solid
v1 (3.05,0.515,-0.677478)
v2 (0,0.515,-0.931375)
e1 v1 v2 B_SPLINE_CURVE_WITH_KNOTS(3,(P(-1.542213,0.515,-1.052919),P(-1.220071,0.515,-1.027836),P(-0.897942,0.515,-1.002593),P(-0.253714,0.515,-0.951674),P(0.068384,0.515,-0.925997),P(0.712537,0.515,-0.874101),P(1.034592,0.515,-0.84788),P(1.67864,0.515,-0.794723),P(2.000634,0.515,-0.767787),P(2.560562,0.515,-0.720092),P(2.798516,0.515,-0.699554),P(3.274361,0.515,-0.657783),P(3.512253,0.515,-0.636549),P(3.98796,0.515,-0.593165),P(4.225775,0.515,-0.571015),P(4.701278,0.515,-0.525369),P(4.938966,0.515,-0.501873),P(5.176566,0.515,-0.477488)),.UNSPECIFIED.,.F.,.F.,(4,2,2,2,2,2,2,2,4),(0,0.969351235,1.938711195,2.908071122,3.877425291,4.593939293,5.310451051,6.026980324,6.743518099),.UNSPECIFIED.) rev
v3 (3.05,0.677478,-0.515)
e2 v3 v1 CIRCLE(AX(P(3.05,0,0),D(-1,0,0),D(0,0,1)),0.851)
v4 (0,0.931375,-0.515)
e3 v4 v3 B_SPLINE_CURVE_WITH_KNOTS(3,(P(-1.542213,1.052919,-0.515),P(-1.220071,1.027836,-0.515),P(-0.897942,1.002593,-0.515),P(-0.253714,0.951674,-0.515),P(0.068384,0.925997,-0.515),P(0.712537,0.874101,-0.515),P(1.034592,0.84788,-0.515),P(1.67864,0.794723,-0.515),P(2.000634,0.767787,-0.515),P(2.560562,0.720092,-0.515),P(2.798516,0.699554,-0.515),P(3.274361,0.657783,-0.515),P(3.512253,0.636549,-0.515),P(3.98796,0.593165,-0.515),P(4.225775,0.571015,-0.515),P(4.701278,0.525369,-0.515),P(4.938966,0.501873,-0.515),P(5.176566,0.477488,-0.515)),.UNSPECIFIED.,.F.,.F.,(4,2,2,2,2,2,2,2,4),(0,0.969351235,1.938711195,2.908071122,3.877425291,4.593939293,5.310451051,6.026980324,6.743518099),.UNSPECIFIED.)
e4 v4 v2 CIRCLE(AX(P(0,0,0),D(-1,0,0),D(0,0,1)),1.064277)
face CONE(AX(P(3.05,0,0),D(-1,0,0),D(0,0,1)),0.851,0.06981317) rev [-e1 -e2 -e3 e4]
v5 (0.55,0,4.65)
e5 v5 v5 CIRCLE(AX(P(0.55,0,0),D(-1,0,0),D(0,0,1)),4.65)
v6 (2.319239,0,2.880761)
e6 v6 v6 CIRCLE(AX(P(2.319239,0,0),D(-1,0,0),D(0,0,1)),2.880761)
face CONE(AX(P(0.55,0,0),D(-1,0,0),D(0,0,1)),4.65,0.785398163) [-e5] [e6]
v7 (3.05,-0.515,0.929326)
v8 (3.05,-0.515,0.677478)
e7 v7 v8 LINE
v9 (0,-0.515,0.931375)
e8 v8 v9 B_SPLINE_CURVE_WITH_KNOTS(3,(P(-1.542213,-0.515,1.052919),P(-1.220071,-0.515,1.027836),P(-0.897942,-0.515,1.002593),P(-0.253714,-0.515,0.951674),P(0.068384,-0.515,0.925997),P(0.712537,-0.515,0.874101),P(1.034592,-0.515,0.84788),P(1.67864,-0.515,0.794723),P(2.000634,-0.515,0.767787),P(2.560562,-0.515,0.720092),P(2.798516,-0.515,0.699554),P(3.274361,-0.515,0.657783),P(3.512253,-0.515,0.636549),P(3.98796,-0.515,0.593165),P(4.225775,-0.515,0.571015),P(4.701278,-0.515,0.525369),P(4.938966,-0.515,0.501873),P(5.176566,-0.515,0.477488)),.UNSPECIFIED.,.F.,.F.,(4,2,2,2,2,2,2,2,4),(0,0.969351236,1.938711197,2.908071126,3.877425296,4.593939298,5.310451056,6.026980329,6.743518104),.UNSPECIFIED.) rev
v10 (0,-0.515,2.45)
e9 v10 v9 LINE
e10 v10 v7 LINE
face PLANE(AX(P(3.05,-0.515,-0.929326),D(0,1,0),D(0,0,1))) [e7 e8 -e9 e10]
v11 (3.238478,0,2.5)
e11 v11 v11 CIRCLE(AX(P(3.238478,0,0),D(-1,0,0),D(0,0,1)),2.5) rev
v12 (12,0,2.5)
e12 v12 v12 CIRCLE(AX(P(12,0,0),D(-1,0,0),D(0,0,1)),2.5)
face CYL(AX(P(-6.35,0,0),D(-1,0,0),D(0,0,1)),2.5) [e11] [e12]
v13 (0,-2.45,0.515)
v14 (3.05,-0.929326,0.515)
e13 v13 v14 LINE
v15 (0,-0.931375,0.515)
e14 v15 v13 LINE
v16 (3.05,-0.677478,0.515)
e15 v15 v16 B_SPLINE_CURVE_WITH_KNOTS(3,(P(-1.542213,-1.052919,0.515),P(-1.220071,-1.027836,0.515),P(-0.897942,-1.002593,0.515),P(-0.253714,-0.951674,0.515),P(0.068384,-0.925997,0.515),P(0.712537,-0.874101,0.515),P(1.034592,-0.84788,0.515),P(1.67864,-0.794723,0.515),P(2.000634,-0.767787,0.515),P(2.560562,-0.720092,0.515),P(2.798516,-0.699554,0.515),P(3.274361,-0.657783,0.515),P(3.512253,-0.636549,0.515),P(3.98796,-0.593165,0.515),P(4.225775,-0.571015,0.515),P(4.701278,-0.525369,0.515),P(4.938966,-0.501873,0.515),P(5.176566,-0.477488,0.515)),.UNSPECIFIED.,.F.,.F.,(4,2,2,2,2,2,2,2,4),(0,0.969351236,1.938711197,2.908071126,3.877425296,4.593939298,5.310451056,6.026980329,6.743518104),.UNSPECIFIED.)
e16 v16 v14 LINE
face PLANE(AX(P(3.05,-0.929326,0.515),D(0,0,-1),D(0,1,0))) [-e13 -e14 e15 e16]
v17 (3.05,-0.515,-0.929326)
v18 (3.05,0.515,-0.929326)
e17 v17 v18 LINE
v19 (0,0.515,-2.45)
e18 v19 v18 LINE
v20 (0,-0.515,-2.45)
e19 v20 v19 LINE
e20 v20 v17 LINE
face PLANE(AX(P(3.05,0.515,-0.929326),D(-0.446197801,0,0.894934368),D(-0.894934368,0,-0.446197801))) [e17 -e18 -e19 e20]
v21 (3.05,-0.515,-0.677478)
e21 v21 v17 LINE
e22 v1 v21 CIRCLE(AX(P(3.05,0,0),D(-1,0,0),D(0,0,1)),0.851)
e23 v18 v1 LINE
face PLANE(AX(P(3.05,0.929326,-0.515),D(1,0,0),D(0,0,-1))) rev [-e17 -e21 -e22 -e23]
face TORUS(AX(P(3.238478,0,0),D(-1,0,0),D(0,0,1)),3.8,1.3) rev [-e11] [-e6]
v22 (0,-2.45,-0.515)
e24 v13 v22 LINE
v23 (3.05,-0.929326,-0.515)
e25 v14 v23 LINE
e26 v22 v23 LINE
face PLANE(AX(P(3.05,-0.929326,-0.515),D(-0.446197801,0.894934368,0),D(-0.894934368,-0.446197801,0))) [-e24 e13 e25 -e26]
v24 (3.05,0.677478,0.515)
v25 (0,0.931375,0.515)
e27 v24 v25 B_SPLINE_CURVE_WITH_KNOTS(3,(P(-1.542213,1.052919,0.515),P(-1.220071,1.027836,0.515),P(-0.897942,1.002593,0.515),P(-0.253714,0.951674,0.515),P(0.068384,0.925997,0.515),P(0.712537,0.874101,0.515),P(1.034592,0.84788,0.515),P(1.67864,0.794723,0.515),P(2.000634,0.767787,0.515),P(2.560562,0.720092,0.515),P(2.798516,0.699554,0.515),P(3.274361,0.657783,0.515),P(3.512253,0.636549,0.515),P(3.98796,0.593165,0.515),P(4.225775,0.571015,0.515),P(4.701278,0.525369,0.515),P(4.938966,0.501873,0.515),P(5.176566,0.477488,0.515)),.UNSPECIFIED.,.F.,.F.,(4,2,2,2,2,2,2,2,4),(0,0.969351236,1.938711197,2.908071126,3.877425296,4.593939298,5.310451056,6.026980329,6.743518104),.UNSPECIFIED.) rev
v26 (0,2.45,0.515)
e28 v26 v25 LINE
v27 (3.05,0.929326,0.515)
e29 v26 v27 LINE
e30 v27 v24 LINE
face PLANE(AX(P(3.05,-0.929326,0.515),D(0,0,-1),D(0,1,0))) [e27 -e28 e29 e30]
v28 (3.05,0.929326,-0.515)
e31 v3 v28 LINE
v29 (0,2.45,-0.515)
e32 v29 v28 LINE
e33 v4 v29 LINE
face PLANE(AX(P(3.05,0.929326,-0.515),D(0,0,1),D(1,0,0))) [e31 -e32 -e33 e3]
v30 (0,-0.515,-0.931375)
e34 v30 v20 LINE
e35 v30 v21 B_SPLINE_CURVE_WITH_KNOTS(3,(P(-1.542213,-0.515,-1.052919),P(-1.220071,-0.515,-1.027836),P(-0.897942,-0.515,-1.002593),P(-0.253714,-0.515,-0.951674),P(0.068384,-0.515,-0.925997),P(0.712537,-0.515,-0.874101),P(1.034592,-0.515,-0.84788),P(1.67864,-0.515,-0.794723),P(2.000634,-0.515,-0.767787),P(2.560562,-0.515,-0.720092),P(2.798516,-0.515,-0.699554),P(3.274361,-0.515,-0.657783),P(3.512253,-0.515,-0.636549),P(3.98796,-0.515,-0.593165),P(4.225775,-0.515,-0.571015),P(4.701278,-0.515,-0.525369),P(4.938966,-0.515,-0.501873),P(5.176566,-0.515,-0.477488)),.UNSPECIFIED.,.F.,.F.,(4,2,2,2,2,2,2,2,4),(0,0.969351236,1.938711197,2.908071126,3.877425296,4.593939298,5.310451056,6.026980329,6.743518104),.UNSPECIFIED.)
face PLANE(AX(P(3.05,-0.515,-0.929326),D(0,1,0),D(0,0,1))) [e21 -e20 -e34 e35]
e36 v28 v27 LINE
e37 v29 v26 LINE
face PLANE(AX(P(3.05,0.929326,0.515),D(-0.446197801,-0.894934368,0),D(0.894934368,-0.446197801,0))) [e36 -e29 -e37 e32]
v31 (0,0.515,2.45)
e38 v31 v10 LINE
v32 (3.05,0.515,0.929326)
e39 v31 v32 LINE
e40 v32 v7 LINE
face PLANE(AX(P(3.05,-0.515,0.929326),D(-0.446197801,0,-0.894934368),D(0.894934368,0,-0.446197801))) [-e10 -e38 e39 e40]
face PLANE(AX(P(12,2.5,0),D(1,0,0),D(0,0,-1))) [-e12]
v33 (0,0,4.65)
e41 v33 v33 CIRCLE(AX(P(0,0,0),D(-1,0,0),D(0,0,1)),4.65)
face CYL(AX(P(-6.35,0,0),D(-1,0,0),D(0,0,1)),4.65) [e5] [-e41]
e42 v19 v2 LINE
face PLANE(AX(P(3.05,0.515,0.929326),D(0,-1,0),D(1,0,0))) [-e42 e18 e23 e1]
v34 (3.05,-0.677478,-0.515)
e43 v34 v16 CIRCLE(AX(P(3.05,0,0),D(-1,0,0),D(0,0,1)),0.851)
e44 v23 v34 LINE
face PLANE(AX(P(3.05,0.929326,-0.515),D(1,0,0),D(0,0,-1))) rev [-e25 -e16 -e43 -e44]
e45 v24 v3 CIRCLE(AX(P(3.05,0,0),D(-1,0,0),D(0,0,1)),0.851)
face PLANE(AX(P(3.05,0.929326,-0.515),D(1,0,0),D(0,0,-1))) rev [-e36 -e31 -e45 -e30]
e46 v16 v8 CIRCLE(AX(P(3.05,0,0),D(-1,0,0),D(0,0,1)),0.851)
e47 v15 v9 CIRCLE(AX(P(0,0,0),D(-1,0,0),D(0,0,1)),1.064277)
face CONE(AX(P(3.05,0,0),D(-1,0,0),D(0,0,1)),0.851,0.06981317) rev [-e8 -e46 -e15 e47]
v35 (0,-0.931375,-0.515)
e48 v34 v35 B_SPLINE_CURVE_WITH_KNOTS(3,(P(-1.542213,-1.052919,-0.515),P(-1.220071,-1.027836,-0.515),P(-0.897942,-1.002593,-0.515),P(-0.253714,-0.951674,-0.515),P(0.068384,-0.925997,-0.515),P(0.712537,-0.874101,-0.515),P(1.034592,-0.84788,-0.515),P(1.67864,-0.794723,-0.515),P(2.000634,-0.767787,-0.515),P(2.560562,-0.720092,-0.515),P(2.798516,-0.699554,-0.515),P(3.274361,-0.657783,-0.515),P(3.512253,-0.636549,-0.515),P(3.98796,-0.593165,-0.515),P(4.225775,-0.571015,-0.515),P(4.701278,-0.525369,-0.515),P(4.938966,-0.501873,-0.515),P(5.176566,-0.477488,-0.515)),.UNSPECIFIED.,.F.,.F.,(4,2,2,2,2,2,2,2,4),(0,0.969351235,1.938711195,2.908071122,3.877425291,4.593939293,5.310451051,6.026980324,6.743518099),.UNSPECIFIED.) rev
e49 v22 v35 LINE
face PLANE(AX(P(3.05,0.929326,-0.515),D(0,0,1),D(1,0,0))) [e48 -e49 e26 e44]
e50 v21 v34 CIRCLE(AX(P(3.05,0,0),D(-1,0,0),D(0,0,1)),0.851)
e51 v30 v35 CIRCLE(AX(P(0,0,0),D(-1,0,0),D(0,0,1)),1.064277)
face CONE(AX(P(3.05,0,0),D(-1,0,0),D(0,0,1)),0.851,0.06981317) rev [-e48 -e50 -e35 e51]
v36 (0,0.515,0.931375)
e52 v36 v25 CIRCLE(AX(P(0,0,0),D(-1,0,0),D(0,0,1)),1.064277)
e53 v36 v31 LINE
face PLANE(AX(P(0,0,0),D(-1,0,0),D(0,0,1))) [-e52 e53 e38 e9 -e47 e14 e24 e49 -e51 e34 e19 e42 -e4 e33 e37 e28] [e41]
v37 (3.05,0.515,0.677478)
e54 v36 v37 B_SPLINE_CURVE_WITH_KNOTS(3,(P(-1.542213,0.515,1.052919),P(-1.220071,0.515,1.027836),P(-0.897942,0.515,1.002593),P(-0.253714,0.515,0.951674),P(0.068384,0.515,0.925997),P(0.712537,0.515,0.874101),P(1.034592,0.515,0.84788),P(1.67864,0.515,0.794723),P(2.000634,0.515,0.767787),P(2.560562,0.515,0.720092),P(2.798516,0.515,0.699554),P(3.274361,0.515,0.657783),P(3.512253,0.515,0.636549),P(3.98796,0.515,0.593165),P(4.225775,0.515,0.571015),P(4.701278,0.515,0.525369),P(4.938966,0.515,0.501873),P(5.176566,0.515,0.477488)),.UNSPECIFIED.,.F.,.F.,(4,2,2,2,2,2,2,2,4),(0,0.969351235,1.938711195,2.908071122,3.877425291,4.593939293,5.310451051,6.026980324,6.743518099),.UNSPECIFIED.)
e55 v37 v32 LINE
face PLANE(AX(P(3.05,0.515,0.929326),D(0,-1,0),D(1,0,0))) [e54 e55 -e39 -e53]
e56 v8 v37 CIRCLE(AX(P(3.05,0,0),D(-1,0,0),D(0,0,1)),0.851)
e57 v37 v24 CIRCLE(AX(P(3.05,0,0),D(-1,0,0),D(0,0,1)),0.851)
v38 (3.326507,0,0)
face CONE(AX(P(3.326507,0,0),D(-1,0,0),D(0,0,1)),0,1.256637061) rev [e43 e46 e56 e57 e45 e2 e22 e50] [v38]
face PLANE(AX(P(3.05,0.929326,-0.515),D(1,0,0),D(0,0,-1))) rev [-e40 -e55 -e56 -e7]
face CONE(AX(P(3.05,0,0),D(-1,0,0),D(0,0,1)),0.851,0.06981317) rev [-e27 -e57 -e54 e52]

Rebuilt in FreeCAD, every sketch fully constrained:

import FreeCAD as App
import Part
import Sketcher
Q = App.Units.Quantity


def edges_at(feature, points):
    """Names of the edges that pass closest to the given points."""
    edges = feature.Shape.Edges
    near = lambda p: min(range(len(edges)), key=lambda i: edges[i].distToShape(Part.Vertex(*p))[0])
    return sorted({f"Edge{near(p) + 1}" for p in points})


def add_polygon(sketch, points):
    """Adds a closed chain of lines whose ends are joined by coincident constraints."""
    first, n = sketch.GeometryCount, len(points)
    for a, b in zip(points, points[1:] + points[:1]):
        sketch.addGeometry(Part.LineSegment(App.Vector(*a, 0), App.Vector(*b, 0)), False)
    for i in range(n):
        sketch.addConstraint(Sketcher.Constraint("Coincident", first + i, 2, first + (i + 1) % n, 1))

doc = App.newDocument("Part")
body = doc.addObject("PartDesign::Body", "Body")

sketch1 = body.newObject("Sketcher::SketchObject", "Sketch")
sketch1.AttachmentSupport = (doc.getObject("XY_Plane"), [""])
sketch1.MapMode = "FlatFace"
add_polygon(sketch1, [(0, 4.7), (0, 0), (12, 0), (12, 2.5), (2.7, 2.5), (0.6, 4.7)])
sketch1.addConstraint([
    Sketcher.Constraint("Vertical", 0),
    Sketcher.Constraint("Horizontal", 1),
    Sketcher.Constraint("Vertical", 2),
    Sketcher.Constraint("Horizontal", 3),
    Sketcher.Constraint("Horizontal", 5),
    Sketcher.Constraint("Coincident", 0, 2, -1, 1),
    Sketcher.Constraint("DistanceX", 1, 1, 1, 2, Q("12 mm")),
    Sketcher.Constraint("Angle", 4, Q("135 deg")),
    Sketcher.Constraint("DistanceX", 3, 2, 3, 1, Q("9.3 mm")),
    Sketcher.Constraint("DistanceY", 2, 1, 2, 2, Q("2.5 mm")),
    Sketcher.Constraint("DistanceX", 5, 2, 5, 1, Q("0.55 mm")),
])
revolution = body.newObject("PartDesign::Revolution", "Revolution")
revolution.Profile = sketch1
revolution.ReferenceAxis = (sketch1, ["H_Axis"])
revolution.Angle = 360
doc.recompute()

fillet = body.newObject("PartDesign::Fillet", "Fillet")
fillet.Base = (revolution, edges_at(revolution, [(2.7, 0, -2.5)]))
fillet.Radius = 1.3

sketch2 = body.newObject("Sketcher::SketchObject", "Sketch001")
sketch2.AttachmentSupport = (doc.getObject("YZ_Plane"), [""])
sketch2.MapMode = "FlatFace"
add_polygon(sketch2, [(2.5, 0.5), (2.5, -0.5), (-2.5, -0.5), (-2.5, 0.5)])
sketch2.addConstraint([
    Sketcher.Constraint("Vertical", 0),
    Sketcher.Constraint("Horizontal", 1),
    Sketcher.Constraint("Vertical", 2),
    Sketcher.Constraint("Horizontal", 3),
    Sketcher.Constraint("Symmetric", 0, 2, 2, 2, -1, 1),
    Sketcher.Constraint("DistanceX", 1, 2, 1, 1, Q("4.9 mm")),
    Sketcher.Constraint("DistanceY", 0, 2, 0, 1, Q("1.03 mm")),
])

sketch3 = body.newObject("Sketcher::SketchObject", "Sketch002")
sketch3.AttachmentSupport = (doc.getObject("YZ_Plane"), [""])
sketch3.MapMode = "FlatFace"
sketch3.AttachmentOffset = App.Placement(App.Vector(0, 0, 3.05), App.Rotation())
add_polygon(sketch3, [(0.9, 0.5), (0.9, -0.5), (-0.9, -0.5), (-0.9, 0.5)])
sketch3.addConstraint([
    Sketcher.Constraint("Vertical", 0),
    Sketcher.Constraint("Horizontal", 1),
    Sketcher.Constraint("Vertical", 2),
    Sketcher.Constraint("Horizontal", 3),
    Sketcher.Constraint("Symmetric", 0, 2, 2, 2, -1, 1),
    Sketcher.Constraint("DistanceY", 0, 2, 0, 1, Q("1.03 mm")),
    Sketcher.Constraint("DistanceX", 1, 2, 1, 1, Q("1.858652 mm")),
])

subtractiveloft = body.newObject("PartDesign::SubtractiveLoft", "SubtractiveLoft")
subtractiveloft.Profile = sketch2
subtractiveloft.Sections = [sketch3]
doc.recompute()

polarpattern = body.newObject("PartDesign::PolarPattern", "PolarPattern")
polarpattern.Originals = [subtractiveloft]
polarpattern.Axis = (doc.getObject("X_Axis"), [""])
polarpattern.Angle = 90
polarpattern.Occurrences = 2
body.Tip = polarpattern

sketch4 = body.newObject("Sketcher::SketchObject", "Sketch003")
sketch4.AttachmentSupport = (doc.getObject("XY_Plane"), [""])
sketch4.MapMode = "FlatFace"
add_polygon(sketch4, [(0, 1.1), (0, 0), (3.3, 0), (3, 0.9)])
sketch4.addConstraint([
    Sketcher.Constraint("Vertical", 0),
    Sketcher.Constraint("Horizontal", 1),
    Sketcher.Constraint("Coincident", 0, 2, -1, 1),
    Sketcher.Constraint("Angle", 2, Q("108 deg")),
    Sketcher.Constraint("Angle", 3, Q("176 deg")),
    Sketcher.Constraint("DistanceX", -1, 1, 2, 2, Q("3.05 mm")),
    Sketcher.Constraint("DistanceY", -1, 1, 2, 2, Q("0.851 mm")),
])
groove = body.newObject("PartDesign::Groove", "Groove")
groove.Profile = sketch4
groove.ReferenceAxis = (sketch4, ["H_Axis"])
groove.Angle = 360

doc.recompute()
